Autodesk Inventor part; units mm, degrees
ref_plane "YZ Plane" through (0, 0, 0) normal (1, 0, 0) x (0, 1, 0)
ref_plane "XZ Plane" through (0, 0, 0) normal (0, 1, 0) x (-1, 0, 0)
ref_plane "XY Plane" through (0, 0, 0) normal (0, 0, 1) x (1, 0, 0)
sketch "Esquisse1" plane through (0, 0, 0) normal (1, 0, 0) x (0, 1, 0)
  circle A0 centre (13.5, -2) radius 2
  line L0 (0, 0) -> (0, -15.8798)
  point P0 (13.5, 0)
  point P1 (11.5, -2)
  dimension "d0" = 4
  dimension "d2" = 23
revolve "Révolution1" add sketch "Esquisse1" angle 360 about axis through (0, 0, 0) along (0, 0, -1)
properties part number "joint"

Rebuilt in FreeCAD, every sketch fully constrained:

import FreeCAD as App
import Part
import Sketcher

V = App.Vector
Q = App.Units.Quantity

doc = App.newDocument("Part")
params = doc.addObject("Spreadsheet::Sheet", "Params")
for row, (alias, value) in enumerate([
    ("sketch1_diameter", "4 mm"),
    ("revolution_angle", "360 deg"),
], start=1):
    params.set(f"A{row}", alias)
    params.set(f"B{row}", "=" + value)
    params.setAlias(f"B{row}", alias)

body = doc.addObject("PartDesign::Body", "Body")

# Sketch on YZ plane
sketch1 = body.newObject("Sketcher::SketchObject", "Sketch")
sketch1.AttachmentSupport = (doc.getObject("YZ_Plane"), [""])
sketch1.MapMode = "FlatFace"
sketch1.addGeometry(Part.Circle(V(13.5, -2, 0), V(0, 0, 1), 2), False)
sketch1.addConstraint([
    Sketcher.Constraint("Diameter", 0, Q("4 mm")),
    Sketcher.Constraint("DistanceY", 0, 3, -1, 1, Q("2 mm")),
    Sketcher.Constraint("DistanceX", -1, 1, 0, 3, Q("13.5 mm")),
])
sketch1.setExpression("Constraints[0]", "Params.sketch1_diameter")
revolution = body.newObject("PartDesign::Revolution", "Revolution")
revolution.Profile = sketch1
revolution.ReferenceAxis = (sketch1, ["V_Axis"])
revolution.setExpression("Angle", "Params.revolution_angle")

doc.recompute()
